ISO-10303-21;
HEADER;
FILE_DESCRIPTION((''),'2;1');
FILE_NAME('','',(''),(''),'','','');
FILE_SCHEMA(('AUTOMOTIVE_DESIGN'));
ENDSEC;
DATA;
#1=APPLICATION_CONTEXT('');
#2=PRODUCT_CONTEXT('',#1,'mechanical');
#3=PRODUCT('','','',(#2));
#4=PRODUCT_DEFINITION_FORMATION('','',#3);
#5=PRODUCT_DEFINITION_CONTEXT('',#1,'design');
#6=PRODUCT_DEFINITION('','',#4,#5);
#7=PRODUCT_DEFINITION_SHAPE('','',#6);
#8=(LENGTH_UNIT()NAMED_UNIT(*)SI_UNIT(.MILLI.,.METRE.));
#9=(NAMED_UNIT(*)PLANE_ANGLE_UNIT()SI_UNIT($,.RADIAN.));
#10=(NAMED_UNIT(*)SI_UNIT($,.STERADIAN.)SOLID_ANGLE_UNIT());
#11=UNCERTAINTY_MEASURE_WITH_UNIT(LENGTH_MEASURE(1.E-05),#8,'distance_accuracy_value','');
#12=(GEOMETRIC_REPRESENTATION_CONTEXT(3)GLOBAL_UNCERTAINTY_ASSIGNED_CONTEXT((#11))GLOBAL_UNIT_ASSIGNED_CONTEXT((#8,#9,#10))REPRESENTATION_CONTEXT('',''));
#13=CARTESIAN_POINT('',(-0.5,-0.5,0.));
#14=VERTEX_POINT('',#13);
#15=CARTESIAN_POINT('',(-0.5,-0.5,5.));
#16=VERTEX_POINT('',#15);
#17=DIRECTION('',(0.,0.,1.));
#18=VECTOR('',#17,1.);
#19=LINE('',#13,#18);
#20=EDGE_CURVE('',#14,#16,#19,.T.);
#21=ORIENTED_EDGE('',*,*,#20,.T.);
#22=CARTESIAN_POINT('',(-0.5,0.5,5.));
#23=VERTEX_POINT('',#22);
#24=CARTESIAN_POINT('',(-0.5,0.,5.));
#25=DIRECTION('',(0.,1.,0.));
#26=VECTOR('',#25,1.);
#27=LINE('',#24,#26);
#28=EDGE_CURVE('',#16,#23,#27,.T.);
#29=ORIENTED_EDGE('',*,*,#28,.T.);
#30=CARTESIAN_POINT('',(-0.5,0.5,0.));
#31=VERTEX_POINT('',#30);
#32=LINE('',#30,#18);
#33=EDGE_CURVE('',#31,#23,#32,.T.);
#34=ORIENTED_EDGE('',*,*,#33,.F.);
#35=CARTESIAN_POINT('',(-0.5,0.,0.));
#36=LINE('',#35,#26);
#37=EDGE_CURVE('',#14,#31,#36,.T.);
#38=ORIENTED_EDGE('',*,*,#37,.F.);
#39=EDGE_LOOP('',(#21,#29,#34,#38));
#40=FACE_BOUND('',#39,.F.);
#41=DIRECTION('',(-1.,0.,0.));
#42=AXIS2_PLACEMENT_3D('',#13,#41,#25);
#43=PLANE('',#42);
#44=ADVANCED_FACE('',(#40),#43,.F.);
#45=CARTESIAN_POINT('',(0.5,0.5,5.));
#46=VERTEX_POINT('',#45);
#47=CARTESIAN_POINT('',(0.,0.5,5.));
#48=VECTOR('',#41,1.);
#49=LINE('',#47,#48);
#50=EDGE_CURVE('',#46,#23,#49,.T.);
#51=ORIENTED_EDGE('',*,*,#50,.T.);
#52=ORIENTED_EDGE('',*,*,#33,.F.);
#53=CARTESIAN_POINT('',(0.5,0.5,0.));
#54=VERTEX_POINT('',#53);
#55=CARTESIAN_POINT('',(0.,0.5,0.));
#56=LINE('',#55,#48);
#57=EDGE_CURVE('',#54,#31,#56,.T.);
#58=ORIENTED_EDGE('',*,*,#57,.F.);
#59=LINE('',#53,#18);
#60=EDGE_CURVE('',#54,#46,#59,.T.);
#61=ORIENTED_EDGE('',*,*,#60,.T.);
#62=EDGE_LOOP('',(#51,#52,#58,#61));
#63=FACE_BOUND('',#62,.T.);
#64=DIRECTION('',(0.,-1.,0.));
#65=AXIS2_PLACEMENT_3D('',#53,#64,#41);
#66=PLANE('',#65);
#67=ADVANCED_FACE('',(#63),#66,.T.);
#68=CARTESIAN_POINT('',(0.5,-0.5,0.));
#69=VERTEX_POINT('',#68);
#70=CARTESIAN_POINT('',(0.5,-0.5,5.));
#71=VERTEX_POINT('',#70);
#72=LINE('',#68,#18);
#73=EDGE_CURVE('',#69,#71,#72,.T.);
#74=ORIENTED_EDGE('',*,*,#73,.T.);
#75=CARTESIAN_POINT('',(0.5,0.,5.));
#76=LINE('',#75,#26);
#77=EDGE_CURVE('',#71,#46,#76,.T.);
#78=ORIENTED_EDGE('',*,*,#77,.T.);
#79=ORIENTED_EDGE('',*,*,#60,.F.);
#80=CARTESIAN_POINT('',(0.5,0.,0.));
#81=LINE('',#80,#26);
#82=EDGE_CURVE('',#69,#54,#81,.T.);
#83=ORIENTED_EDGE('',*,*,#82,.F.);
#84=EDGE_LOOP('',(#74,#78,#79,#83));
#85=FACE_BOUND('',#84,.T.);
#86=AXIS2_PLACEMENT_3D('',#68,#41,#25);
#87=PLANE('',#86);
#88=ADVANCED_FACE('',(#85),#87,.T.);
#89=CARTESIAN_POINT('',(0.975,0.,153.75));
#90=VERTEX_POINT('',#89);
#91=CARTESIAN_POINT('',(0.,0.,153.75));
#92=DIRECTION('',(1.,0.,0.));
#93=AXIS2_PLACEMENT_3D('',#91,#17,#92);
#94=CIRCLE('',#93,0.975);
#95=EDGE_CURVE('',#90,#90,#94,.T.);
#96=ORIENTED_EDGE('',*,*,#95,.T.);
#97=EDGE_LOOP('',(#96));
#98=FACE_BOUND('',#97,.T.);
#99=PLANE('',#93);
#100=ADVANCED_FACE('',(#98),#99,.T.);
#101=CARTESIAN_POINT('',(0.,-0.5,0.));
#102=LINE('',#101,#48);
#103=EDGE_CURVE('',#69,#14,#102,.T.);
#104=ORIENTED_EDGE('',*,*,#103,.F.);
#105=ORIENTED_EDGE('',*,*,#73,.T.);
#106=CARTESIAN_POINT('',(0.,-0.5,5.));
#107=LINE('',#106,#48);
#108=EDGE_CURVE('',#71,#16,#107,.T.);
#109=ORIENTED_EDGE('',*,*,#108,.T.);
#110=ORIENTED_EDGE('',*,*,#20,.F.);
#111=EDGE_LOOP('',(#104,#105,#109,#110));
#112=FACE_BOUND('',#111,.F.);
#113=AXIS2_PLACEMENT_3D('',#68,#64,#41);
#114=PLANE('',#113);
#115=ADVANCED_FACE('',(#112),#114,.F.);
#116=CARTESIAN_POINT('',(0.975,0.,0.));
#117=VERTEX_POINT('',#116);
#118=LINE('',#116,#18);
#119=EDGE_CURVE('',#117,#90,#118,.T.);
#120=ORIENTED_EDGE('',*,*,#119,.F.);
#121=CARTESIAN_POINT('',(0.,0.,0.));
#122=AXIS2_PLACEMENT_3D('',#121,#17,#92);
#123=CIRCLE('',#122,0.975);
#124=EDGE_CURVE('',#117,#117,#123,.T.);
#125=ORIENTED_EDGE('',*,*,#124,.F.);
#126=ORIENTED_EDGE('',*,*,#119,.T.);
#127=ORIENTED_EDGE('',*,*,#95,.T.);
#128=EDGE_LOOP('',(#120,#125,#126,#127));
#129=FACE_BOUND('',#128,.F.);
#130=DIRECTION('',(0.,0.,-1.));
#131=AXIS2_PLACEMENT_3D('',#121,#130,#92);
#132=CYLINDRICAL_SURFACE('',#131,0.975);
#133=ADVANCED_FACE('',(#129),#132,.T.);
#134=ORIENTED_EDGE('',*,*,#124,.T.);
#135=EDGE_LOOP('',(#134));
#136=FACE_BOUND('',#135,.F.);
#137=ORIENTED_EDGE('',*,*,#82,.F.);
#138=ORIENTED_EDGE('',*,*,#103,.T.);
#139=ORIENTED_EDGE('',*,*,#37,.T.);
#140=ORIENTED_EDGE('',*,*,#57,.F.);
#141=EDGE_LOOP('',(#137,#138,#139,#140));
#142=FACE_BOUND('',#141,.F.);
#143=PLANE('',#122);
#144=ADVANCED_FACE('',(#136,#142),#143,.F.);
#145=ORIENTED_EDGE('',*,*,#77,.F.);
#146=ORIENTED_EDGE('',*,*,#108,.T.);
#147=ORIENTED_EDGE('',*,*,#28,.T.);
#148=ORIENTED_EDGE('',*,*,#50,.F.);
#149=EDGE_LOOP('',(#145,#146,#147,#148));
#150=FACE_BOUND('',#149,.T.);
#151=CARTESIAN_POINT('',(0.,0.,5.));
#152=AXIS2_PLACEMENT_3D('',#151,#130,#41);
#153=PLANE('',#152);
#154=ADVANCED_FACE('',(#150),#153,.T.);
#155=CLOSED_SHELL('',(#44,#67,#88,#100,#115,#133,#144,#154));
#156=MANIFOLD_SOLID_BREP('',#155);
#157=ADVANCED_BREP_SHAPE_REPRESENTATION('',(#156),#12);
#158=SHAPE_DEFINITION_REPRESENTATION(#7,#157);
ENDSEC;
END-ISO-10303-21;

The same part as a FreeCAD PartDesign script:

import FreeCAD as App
import Part
import Sketcher


def add_polygon(sketch, points):
    """Adds a closed chain of lines whose ends are joined by coincident constraints."""
    first, n = sketch.GeometryCount, len(points)
    for a, b in zip(points, points[1:] + points[:1]):
        sketch.addGeometry(Part.LineSegment(App.Vector(*a, 0), App.Vector(*b, 0)), False)
    for i in range(n):
        sketch.addConstraint(Sketcher.Constraint("Coincident", first + i, 2, first + (i + 1) % n, 1))

doc = App.newDocument("Part")
body = doc.addObject("PartDesign::Body", "Body")

sketch1 = body.newObject("Sketcher::SketchObject", "Sketch")
sketch1.AttachmentSupport = (doc.getObject("XY_Plane"), [""])
sketch1.MapMode = "FlatFace"
sketch1.addGeometry(Part.Circle(App.Vector(0, 0, 0), App.Vector(0, 0, 1), 0.975), False)
sketch1.addConstraint([
    Sketcher.Constraint("Coincident", 0, 3, -1, 1),
    Sketcher.Constraint("Diameter", 0, 1.95),
])
pad1 = body.newObject("PartDesign::Pad", "Pad")
pad1.Profile = sketch1
pad1.Length = 153.75

sketch2 = body.newObject("Sketcher::SketchObject", "Sketch001")
sketch2.AttachmentSupport = (doc.getObject("XY_Plane"), [""])
sketch2.MapMode = "FlatFace"
add_polygon(sketch2, [(0.5, 0.5), (0.5, -0.5), (-0.5, -0.5), (-0.5, 0.5)])
sketch2.addConstraint([
    Sketcher.Constraint("Vertical", 0),
    Sketcher.Constraint("Horizontal", 1),
    Sketcher.Constraint("Vertical", 2),
    Sketcher.Constraint("Horizontal", 3),
    Sketcher.Constraint("Symmetric", 0, 2, 2, 2, -1, 1),
    Sketcher.Constraint("Equal", 3, 0),
    Sketcher.Constraint("DistanceX", 1, 2, 1, 1, 1.0),
])
pocket1 = body.newObject("PartDesign::Pocket", "Pocket")
pocket1.Profile = sketch2
pocket1.Length = 5
pocket1.Reversed = True

doc.recompute()
